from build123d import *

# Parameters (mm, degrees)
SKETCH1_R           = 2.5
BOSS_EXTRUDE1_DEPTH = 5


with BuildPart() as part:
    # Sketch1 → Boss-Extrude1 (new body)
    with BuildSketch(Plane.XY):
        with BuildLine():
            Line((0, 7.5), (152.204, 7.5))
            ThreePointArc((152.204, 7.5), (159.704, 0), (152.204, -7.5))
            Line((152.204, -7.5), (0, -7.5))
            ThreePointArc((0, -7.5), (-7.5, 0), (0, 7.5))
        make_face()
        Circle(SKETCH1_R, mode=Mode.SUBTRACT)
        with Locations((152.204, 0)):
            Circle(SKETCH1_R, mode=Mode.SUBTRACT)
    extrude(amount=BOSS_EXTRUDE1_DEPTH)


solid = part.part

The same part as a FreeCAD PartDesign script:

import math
import FreeCAD as App
import Part
import Sketcher
Q = App.Units.Quantity

doc = App.newDocument("Part")
body = doc.addObject("PartDesign::Body", "Body")

# Sketch on XY plane
sketch1 = body.newObject("Sketcher::SketchObject", "Sketch")
sketch1.AttachmentSupport = (doc.getObject("XY_Plane"), [""])
sketch1.MapMode = "FlatFace"
sketch1.addGeometry([
    Part.LineSegment(App.Vector(152.2, 7.5, 0), App.Vector(0, 7.5, 0)),  # 0
    Part.ArcOfCircle(Part.Circle(App.Vector(0, 0, 0), App.Vector(0, 0, 1), 7.5), math.radians(90), math.radians(270)),  # 1
    Part.LineSegment(App.Vector(0, -7.5, 0), App.Vector(152.2, -7.5, 0)),  # 2
    Part.ArcOfCircle(Part.Circle(App.Vector(152.2, 0, 0), App.Vector(0, 0, 1), 7.5), math.radians(-90), math.radians(90)),  # 3
    Part.Circle(App.Vector(152.2, 0, 0), App.Vector(0, 0, 1), 2.5),  # 4
    Part.Circle(App.Vector(0, 0, 0), App.Vector(0, 0, 1), 2.5),  # 5
], False)
sketch1.addConstraint([
    Sketcher.Constraint("Tangent", 0, 2, 1, 1),
    Sketcher.Constraint("Tangent", 1, 2, 2, 1),
    Sketcher.Constraint("Tangent", 2, 2, 3, 1),
    Sketcher.Constraint("Tangent", 3, 2, 0, 1),
    Sketcher.Constraint("Horizontal", 0),
    Sketcher.Constraint("Horizontal", 2),
    Sketcher.Constraint("Coincident", 1, 3, -1, 1),
    Sketcher.Constraint("Coincident", 5, 3, -1, 1),
    Sketcher.Constraint("Coincident", 4, 3, 3, 3),
    Sketcher.Constraint("Equal", 4, 5),
    Sketcher.Constraint("Diameter", 4, Q("5 mm")),
    Sketcher.Constraint("Radius", 1, Q("7.5 mm")),
    Sketcher.Constraint("DistanceX", 0, 2, 0, 1, Q("152.204 mm")),
])
pad1 = body.newObject("PartDesign::Pad", "Pad")
pad1.Profile = sketch1
pad1.Length = 5

doc.recompute()
